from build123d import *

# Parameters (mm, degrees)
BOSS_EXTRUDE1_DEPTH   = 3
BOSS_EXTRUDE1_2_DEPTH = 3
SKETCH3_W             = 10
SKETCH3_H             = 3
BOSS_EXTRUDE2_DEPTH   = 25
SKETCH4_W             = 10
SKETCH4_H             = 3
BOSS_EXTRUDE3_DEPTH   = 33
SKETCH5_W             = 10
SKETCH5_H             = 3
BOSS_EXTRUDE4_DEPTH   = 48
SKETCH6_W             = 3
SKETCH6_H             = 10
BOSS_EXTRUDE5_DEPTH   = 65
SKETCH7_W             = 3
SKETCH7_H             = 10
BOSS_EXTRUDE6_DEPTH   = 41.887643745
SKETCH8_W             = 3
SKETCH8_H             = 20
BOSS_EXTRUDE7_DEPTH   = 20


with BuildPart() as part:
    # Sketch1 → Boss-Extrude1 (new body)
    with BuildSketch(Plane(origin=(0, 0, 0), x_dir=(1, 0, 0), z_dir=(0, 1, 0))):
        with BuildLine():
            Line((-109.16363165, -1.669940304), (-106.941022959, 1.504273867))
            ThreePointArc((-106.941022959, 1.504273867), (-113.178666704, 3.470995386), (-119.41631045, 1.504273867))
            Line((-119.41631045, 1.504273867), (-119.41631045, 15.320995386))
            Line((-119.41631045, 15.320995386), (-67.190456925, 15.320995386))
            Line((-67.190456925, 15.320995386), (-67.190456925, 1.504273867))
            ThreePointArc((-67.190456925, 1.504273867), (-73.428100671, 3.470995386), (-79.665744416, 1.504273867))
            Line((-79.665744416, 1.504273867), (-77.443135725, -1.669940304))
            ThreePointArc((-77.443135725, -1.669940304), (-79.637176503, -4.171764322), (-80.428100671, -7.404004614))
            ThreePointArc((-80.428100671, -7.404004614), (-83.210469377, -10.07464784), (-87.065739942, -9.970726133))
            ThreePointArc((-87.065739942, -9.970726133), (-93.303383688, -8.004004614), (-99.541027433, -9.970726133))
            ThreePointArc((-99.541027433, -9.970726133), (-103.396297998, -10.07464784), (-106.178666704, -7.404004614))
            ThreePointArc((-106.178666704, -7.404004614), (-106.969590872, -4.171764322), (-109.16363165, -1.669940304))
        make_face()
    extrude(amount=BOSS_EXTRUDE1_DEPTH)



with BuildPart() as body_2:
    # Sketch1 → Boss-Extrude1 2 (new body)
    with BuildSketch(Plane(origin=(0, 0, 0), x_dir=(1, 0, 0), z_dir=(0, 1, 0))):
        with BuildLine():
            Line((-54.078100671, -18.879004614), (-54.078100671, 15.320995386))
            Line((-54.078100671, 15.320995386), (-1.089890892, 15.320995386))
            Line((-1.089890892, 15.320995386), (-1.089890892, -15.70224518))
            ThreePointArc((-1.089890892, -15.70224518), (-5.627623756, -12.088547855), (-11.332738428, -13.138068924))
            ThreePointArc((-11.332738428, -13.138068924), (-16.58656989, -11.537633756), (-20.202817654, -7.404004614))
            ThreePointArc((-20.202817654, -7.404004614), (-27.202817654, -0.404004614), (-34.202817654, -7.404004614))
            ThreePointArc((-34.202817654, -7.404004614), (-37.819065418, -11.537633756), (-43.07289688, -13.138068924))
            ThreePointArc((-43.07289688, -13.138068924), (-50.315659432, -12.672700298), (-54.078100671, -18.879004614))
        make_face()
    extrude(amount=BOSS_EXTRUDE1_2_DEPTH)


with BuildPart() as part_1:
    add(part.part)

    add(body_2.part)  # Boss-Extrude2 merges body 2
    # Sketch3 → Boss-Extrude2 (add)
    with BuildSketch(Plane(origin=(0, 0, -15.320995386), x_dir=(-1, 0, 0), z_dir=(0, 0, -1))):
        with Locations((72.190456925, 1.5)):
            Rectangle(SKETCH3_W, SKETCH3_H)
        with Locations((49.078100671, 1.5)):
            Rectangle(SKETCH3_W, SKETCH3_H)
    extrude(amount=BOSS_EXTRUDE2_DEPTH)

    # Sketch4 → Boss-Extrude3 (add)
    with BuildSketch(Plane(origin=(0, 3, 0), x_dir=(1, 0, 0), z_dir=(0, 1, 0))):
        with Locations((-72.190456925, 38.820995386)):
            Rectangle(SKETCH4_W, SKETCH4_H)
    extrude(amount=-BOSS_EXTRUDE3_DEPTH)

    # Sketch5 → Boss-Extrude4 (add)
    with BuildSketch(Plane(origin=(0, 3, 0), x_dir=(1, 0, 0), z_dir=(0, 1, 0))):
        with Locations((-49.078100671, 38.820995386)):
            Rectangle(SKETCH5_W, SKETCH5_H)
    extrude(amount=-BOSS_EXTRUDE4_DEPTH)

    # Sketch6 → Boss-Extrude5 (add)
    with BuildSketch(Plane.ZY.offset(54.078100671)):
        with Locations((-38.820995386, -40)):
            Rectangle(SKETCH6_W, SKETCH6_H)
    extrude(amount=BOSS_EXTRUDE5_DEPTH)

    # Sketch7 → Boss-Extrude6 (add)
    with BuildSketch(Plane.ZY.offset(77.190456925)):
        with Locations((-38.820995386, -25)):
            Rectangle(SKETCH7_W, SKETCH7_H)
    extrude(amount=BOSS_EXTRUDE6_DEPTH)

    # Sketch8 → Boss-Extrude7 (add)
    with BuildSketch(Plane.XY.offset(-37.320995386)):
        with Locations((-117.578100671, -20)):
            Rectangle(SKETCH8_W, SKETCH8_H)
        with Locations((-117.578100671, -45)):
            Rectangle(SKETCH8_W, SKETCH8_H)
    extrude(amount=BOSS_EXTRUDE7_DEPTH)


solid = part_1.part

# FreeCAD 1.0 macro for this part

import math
import FreeCAD as App
import Part
import Sketcher

V = App.Vector
Q = App.Units.Quantity


def add_polygon(sketch, points):
    """Adds a closed chain of lines whose ends are joined by coincident constraints."""
    first, n = sketch.GeometryCount, len(points)
    for a, b in zip(points, points[1:] + points[:1]):
        sketch.addGeometry(Part.LineSegment(App.Vector(*a, 0), App.Vector(*b, 0)), False)
    for i in range(n):
        sketch.addConstraint(Sketcher.Constraint("Coincident", first + i, 2, first + (i + 1) % n, 1))

doc = App.newDocument("Part")
body = doc.addObject("PartDesign::Body", "Body")

# Sketch on XZ plane
sketch1 = body.newObject("Sketcher::SketchObject", "Sketch")
sketch1.AttachmentSupport = (doc.getObject("XZ_Plane"), [""])
sketch1.MapMode = "FlatFace"
sketch1.addGeometry(Part.LineSegment(V(-106.9, -1.5, 0), V(-109.2, 1.7, 0)), False)
sketch1.addGeometry(Part.ArcOfCircle(Part.Circle(V(-113.2, 7.4, 0), V(0, 0, 1), 7), math.radians(-55), math.radians(0)), False)
sketch1.addGeometry(Part.ArcOfCircle(Part.Circle(V(-101.6, 5.4, 0), V(0, 0, 1), 5), math.radians(66), math.radians(157)), False)
sketch1.addGeometry(Part.ArcOfCircle(Part.Circle(V(-93.3, 18.9, 0), V(0, 0, 1), 10.9), math.radians(-125), math.radians(-55)), False)
sketch1.addGeometry(Part.ArcOfCircle(Part.Circle(V(-85, 5.4, 0), V(0, 0, 1), 5), math.radians(23), math.radians(114)), False)
sketch1.addGeometry(Part.ArcOfCircle(Part.Circle(V(-73.4, 7.4, 0), V(0, 0, 1), 7), math.radians(-180), math.radians(-125)), False)
sketch1.addGeometry(Part.LineSegment(V(-77.4, 1.7, 0), V(-79.7, -1.5, 0)), False)
sketch1.addGeometry(Part.ArcOfCircle(Part.Circle(V(-73.4, 7.4, 0), V(0, 0, 1), 10.9), math.radians(-125), math.radians(-55)), False)
sketch1.addGeometry(Part.LineSegment(V(-67.2, -1.5, 0), V(-67.2, -15.3, 0)), False)
sketch1.addGeometry(Part.LineSegment(V(-67.2, -15.3, 0), V(-119.4, -15.3, 0)), False)
sketch1.addGeometry(Part.LineSegment(V(-119.4, -15.3, 0), V(-119.4, -1.5, 0)), False)
sketch1.addGeometry(Part.ArcOfCircle(Part.Circle(V(-113.2, 7.4, 0), V(0, 0, 1), 10.9), math.radians(-125), math.radians(-55)), False)
sketch1.addConstraint(Sketcher.Constraint("Coincident", 0, 2, 1, 1))
sketch1.addConstraint(Sketcher.Constraint("Coincident", 1, 2, 2, 2))
sketch1.addConstraint(Sketcher.Constraint("Coincident", 2, 1, 3, 1))
sketch1.addConstraint(Sketcher.Constraint("Coincident", 3, 2, 4, 2))
sketch1.addConstraint(Sketcher.Constraint("Coincident", 4, 1, 5, 1))
sketch1.addConstraint(Sketcher.Constraint("Coincident", 5, 2, 6, 1))
sketch1.addConstraint(Sketcher.Constraint("Coincident", 6, 2, 7, 1))
sketch1.addConstraint(Sketcher.Constraint("Coincident", 7, 2, 8, 1))
sketch1.addConstraint(Sketcher.Constraint("Coincident", 8, 2, 9, 1))
sketch1.addConstraint(Sketcher.Constraint("Coincident", 9, 2, 10, 1))
sketch1.addConstraint(Sketcher.Constraint("Coincident", 10, 2, 11, 1))
sketch1.addConstraint(Sketcher.Constraint("Coincident", 11, 2, 0, 1))
sketch1.addConstraint(Sketcher.Constraint("Vertical", 8))
sketch1.addConstraint(Sketcher.Constraint("Horizontal", 9))
sketch1.addConstraint(Sketcher.Constraint("Vertical", 10))
sketch1.addConstraint(Sketcher.Constraint("Coincident", 7, 3, 5, 3))
sketch1.addConstraint(Sketcher.Constraint("Coincident", 11, 3, 1, 3))
sketch1.addConstraint(Sketcher.Constraint("Equal", 2, 4))
sketch1.addConstraint(Sketcher.Constraint("Equal", 1, 5))
sketch1.addConstraint(Sketcher.Constraint("Equal", 3, 7))
sketch1.addConstraint(Sketcher.Constraint("Equal", 7, 11))
sketch1.addConstraint(Sketcher.Constraint("Horizontal", 2, 3, 4, 3))
sketch1.addConstraint(Sketcher.Constraint("Horizontal", 1, 3, 5, 3))
sketch1.addConstraint(Sketcher.Constraint("Horizontal", 11, 3, 1, 2))
sketch1.addConstraint(Sketcher.Constraint("Horizontal", 2, 1, 3, 2))
sketch1.addConstraint(Sketcher.Constraint("Horizontal", 1, 2, 4, 1))
sketch1.addConstraint(Sketcher.Constraint("Horizontal", 0, 2, 5, 2))
sketch1.addConstraint(Sketcher.Constraint("Horizontal", 6, 2, 7, 2))
sketch1.addConstraint(Sketcher.Constraint("Horizontal", 7, 2, 10, 2))
sketch1.addConstraint(Sketcher.Constraint("Horizontal", 10, 2, 11, 2))
sketch1.addConstraint(Sketcher.Constraint("Radius", 1, Q("7 mm")))
sketch1.addConstraint(Sketcher.Constraint("Radius", 2, Q("5 mm")))
sketch1.addConstraint(Sketcher.Constraint("Angle", 0, Q("125 deg")))
sketch1.addConstraint(Sketcher.Constraint("Radius", 3, Q("10.875 mm")))
sketch1.addConstraint(Sketcher.Constraint("DistanceY", 1, 3, 3, 3, Q("11.475 mm")))
sketch1.addConstraint(Sketcher.Constraint("DistanceY", 8, 2, 7, 3, Q("22.725 mm")))
sketch1.addConstraint(Sketcher.Constraint("DistanceY", 8, 2, 8, 1, Q("13.816722 mm")))
sketch1.addConstraint(Sketcher.Constraint("DistanceX", 5, 3, -1, 1, Q("73.428101 mm")))
sketch1.addConstraint(Sketcher.Constraint("DistanceX", 9, 2, 9, 1, Q("52.225854 mm")))
sketch1.addConstraint(Sketcher.Constraint("DistanceX", 2, 3, -1, 1, Q("101.59297 mm")))
sketch1.addConstraint(Sketcher.Constraint("DistanceY", -1, 1, 0, 2, Q("1.66994 mm")))
pad1 = body.newObject("PartDesign::Pad", "Pad")
pad1.Profile = sketch1
pad1.Length = 3
pad1.Reversed = True
body2 = doc.addObject("PartDesign::Body", "Body001")

# Sketch on XZ plane
sketch2 = body2.newObject("Sketcher::SketchObject", "Sketch001")
sketch2.AttachmentSupport = (doc.getObject("XZ_Plane001"), [""])
sketch2.MapMode = "FlatFace"
sketch2.addGeometry(Part.LineSegment(V(-54.078101, -15.320995, 0), V(-54.078101, 18.879005, 0)), False)
sketch2.addGeometry(Part.ArcOfCircle(Part.Circle(V(-47.078101, 18.879005, 0), V(0, 0, 1), 7), math.radians(-180), math.radians(-55.098177)), False)
sketch2.addGeometry(Part.ArcOfCircle(Part.Circle(V(-43.247975, 3.139602, 0), V(0, 0, 1), 10), math.radians(25.241864), math.radians(88.996826)), False)
sketch2.addGeometry(Part.ArcOfCircle(Part.Circle(V(-27.202818, 7.404005, 0), V(0, 0, 1), 7), math.radians(180), math.radians(360)), False)
sketch2.addGeometry(Part.ArcOfCircle(Part.Circle(V(-11.157661, 3.139602, 0), V(0, 0, 1), 10), math.radians(91.003174), math.radians(154.758136)), False)
sketch2.addGeometry(Part.ArcOfCircle(Part.Circle(V(-7.327535, 18.879005, 0), V(0, 0, 1), 7), math.radians(-124.901823), math.radians(-26.989215)), False)
sketch2.addGeometry(Part.LineSegment(V(-1.089891, 15.702245, 0), V(-1.089891, -15.320995, 0)), False)
sketch2.addGeometry(Part.LineSegment(V(-1.089891, -15.320995, 0), V(-54.078101, -15.320995, 0)), False)
sketch2.addConstraint(Sketcher.Constraint("Tangent", 0, 2, 1, 1))
sketch2.addConstraint(Sketcher.Constraint("Coincident", 1, 2, 2, 2))
sketch2.addConstraint(Sketcher.Constraint("Coincident", 2, 1, 3, 1))
sketch2.addConstraint(Sketcher.Constraint("Coincident", 3, 2, 4, 2))
sketch2.addConstraint(Sketcher.Constraint("Coincident", 4, 1, 5, 1))
sketch2.addConstraint(Sketcher.Constraint("Coincident", 5, 2, 6, 1))
sketch2.addConstraint(Sketcher.Constraint("Coincident", 6, 2, 7, 1))
sketch2.addConstraint(Sketcher.Constraint("Coincident", 7, 2, 0, 1))
sketch2.addConstraint(Sketcher.Constraint("Vertical", 0))
sketch2.addConstraint(Sketcher.Constraint("Vertical", 6))
sketch2.addConstraint(Sketcher.Constraint("Horizontal", 7))
sketch2.addConstraint(Sketcher.Constraint("Equal", 1, 3))
sketch2.addConstraint(Sketcher.Constraint("Equal", 2, 4))
sketch2.addConstraint(Sketcher.Constraint("Equal", 3, 5))
sketch2.addConstraint(Sketcher.Constraint("Horizontal", 2, 3, 4, 3))
sketch2.addConstraint(Sketcher.Constraint("Horizontal", 1, 3, 5, 3))
sketch2.addConstraint(Sketcher.Constraint("Horizontal", 3, 3, 2, 1))
sketch2.addConstraint(Sketcher.Constraint("Horizontal", 2, 1, 3, 2))
sketch2.addConstraint(Sketcher.Constraint("Horizontal", 1, 2, 4, 1))
sketch2.addConstraint(Sketcher.Constraint("Radius", 1, Q("7 mm")))
sketch2.addConstraint(Sketcher.Constraint("Radius", 2, Q("10 mm")))
sketch2.addConstraint(Sketcher.Constraint("DistanceY", 0, 1, 0, 2, Q("34.2 mm")))
sketch2.addConstraint(Sketcher.Constraint("DistanceY", 3, 3, 1, 3, Q("11.475 mm")))
sketch2.addConstraint(Sketcher.Constraint("DistanceX", 7, 2, 7, 1, Q("52.98821 mm")))
sketch2.addConstraint(Sketcher.Constraint("DistanceY", 6, 2, 6, 1, Q("31.023241 mm")))
sketch2.addConstraint(Sketcher.Constraint("DistanceX", 1, 3, -1, 1, Q("47.078101 mm")))
sketch2.addConstraint(Sketcher.Constraint("DistanceY", -1, 1, 2, 3, Q("3.139602 mm")))
sketch2.addConstraint(Sketcher.Constraint("DistanceX", 4, 3, -1, 1, Q("11.157661 mm")))
pad2 = body2.newObject("PartDesign::Pad", "Pad001")
pad2.Profile = sketch2
pad2.Length = 3
pad2.Reversed = True
body.AllowCompound = True
doc.recompute()

boolean = body.newObject("PartDesign::Boolean", "Boolean")
boolean.Type = "Fuse"
boolean.addObjects([body2])

# Sketch on XY plane
sketch3 = body.newObject("Sketcher::SketchObject", "Sketch002")
sketch3.AttachmentSupport = (doc.getObject("XY_Plane"), [""])
sketch3.MapMode = "FlatFace"
sketch3.AttachmentOffset = App.Placement(V(0, 0, -15.320995), App.Rotation())
add_polygon(sketch3, [(-67.2, 3), (-67.2, 0), (-77.2, 0), (-77.2, 3)])  # lines 0-3
add_polygon(sketch3, [(-44.1, 3), (-44.1, 0), (-54.1, 0), (-54.1, 3)])  # lines 4-7
sketch3.addConstraint(Sketcher.Constraint("Vertical", 0))
sketch3.addConstraint(Sketcher.Constraint("Horizontal", 1))
sketch3.addConstraint(Sketcher.Constraint("Vertical", 2))
sketch3.addConstraint(Sketcher.Constraint("Horizontal", 3))
sketch3.addConstraint(Sketcher.Constraint("Vertical", 4))
sketch3.addConstraint(Sketcher.Constraint("Horizontal", 5))
sketch3.addConstraint(Sketcher.Constraint("Vertical", 6))
sketch3.addConstraint(Sketcher.Constraint("Horizontal", 7))
sketch3.addConstraint(Sketcher.Constraint("PointOnObject", 0, 2, -1))
sketch3.addConstraint(Sketcher.Constraint("PointOnObject", 4, 2, -1))
sketch3.addConstraint(Sketcher.Constraint("Horizontal", 3, 2, 6, 2))
sketch3.addConstraint(Sketcher.Constraint("Equal", 3, 5))
sketch3.addConstraint(Sketcher.Constraint("DistanceX", 1, 2, 1, 1, Q("10 mm")))
sketch3.addConstraint(Sketcher.Constraint("DistanceY", 0, 2, 0, 1, Q("3 mm")))
sketch3.addConstraint(Sketcher.Constraint("DistanceX", 4, 2, -1, 1, Q("44.078101 mm")))
sketch3.addConstraint(Sketcher.Constraint("DistanceX", 0, 2, -1, 1, Q("67.190457 mm")))
pad3 = body.newObject("PartDesign::Pad", "Pad002")
pad3.Profile = sketch3
pad3.Length = 25
pad3.Reversed = True

# Sketch on XZ plane
sketch4 = body.newObject("Sketcher::SketchObject", "Sketch003")
sketch4.AttachmentSupport = (doc.getObject("XZ_Plane"), [""])
sketch4.MapMode = "FlatFace"
sketch4.AttachmentOffset = App.Placement(V(0, 0, -3), App.Rotation())
add_polygon(sketch4, [(-77.2, -40.3), (-77.2, -37.3), (-67.2, -37.3), (-67.2, -40.3)])  # lines 0-3
sketch4.addConstraint(Sketcher.Constraint("Vertical", 0))
sketch4.addConstraint(Sketcher.Constraint("Horizontal", 1))
sketch4.addConstraint(Sketcher.Constraint("Vertical", 2))
sketch4.addConstraint(Sketcher.Constraint("Horizontal", 3))
sketch4.addConstraint(Sketcher.Constraint("DistanceX", 1, 1, 1, 2, Q("10 mm")))
sketch4.addConstraint(Sketcher.Constraint("DistanceY", 0, 1, 0, 2, Q("3 mm")))
sketch4.addConstraint(Sketcher.Constraint("DistanceX", 0, 2, -1, 1, Q("77.190457 mm")))
sketch4.addConstraint(Sketcher.Constraint("DistanceY", 0, 2, -1, 1, Q("37.320995 mm")))
pad4 = body.newObject("PartDesign::Pad", "Pad003")
pad4.Profile = sketch4
pad4.Length = 33

# Sketch on XZ plane
sketch5 = body.newObject("Sketcher::SketchObject", "Sketch004")
sketch5.AttachmentSupport = (doc.getObject("XZ_Plane"), [""])
sketch5.MapMode = "FlatFace"
sketch5.AttachmentOffset = App.Placement(V(0, 0, -3), App.Rotation())
add_polygon(sketch5, [(-54.1, -40.3), (-54.1, -37.3), (-44.1, -37.3), (-44.1, -40.3)])  # lines 0-3
sketch5.addConstraint(Sketcher.Constraint("Vertical", 0))
sketch5.addConstraint(Sketcher.Constraint("Horizontal", 1))
sketch5.addConstraint(Sketcher.Constraint("Vertical", 2))
sketch5.addConstraint(Sketcher.Constraint("Horizontal", 3))
sketch5.addConstraint(Sketcher.Constraint("DistanceX", 1, 1, 1, 2, Q("10 mm")))
sketch5.addConstraint(Sketcher.Constraint("DistanceY", 0, 1, 0, 2, Q("3 mm")))
sketch5.addConstraint(Sketcher.Constraint("DistanceX", 0, 2, -1, 1, Q("54.078101 mm")))
sketch5.addConstraint(Sketcher.Constraint("DistanceY", 0, 2, -1, 1, Q("37.320995 mm")))
pad5 = body.newObject("PartDesign::Pad", "Pad004")
pad5.Profile = sketch5
pad5.Length = 48

# Sketch on YZ plane
sketch6 = body.newObject("Sketcher::SketchObject", "Sketch005")
sketch6.AttachmentSupport = (doc.getObject("YZ_Plane"), [""])
sketch6.MapMode = "FlatFace"
sketch6.AttachmentOffset = App.Placement(V(0, 0, -54.078101), App.Rotation())
add_polygon(sketch6, [(-35, -40.3), (-45, -40.3), (-45, -37.3), (-35, -37.3)])  # lines 0-3
sketch6.addConstraint(Sketcher.Constraint("Horizontal", 0))
sketch6.addConstraint(Sketcher.Constraint("Vertical", 1))
sketch6.addConstraint(Sketcher.Constraint("Horizontal", 2))
sketch6.addConstraint(Sketcher.Constraint("Vertical", 3))
sketch6.addConstraint(Sketcher.Constraint("DistanceX", 0, 2, 0, 1, Q("10 mm")))
sketch6.addConstraint(Sketcher.Constraint("DistanceY", 1, 1, 1, 2, Q("3 mm")))
sketch6.addConstraint(Sketcher.Constraint("DistanceX", 0, 2, -1, 1, Q("45 mm")))
sketch6.addConstraint(Sketcher.Constraint("DistanceY", 0, 2, -1, 1, Q("40.320995 mm")))
pad6 = body.newObject("PartDesign::Pad", "Pad005")
pad6.Profile = sketch6
pad6.Length = 65
pad6.Reversed = True

# Sketch on YZ plane
sketch7 = body.newObject("Sketcher::SketchObject", "Sketch006")
sketch7.AttachmentSupport = (doc.getObject("YZ_Plane"), [""])
sketch7.MapMode = "FlatFace"
sketch7.AttachmentOffset = App.Placement(V(0, 0, -77.190457), App.Rotation())
add_polygon(sketch7, [(-20, -40.3), (-30, -40.3), (-30, -37.3), (-20, -37.3)])  # lines 0-3
sketch7.addConstraint(Sketcher.Constraint("Horizontal", 0))
sketch7.addConstraint(Sketcher.Constraint("Vertical", 1))
sketch7.addConstraint(Sketcher.Constraint("Horizontal", 2))
sketch7.addConstraint(Sketcher.Constraint("Vertical", 3))
sketch7.addConstraint(Sketcher.Constraint("DistanceX", 0, 2, 0, 1, Q("10 mm")))
sketch7.addConstraint(Sketcher.Constraint("DistanceY", 1, 1, 1, 2, Q("3 mm")))
sketch7.addConstraint(Sketcher.Constraint("DistanceX", 0, 2, -1, 1, Q("30 mm")))
sketch7.addConstraint(Sketcher.Constraint("DistanceY", 0, 2, -1, 1, Q("40.320995 mm")))
pad7 = body.newObject("PartDesign::Pad", "Pad006")
pad7.Profile = sketch7
pad7.Length = 41.887644
pad7.Reversed = True

# Sketch on XY plane
sketch8 = body.newObject("Sketcher::SketchObject", "Sketch007")
sketch8.AttachmentSupport = (doc.getObject("XY_Plane"), [""])
sketch8.MapMode = "FlatFace"
sketch8.AttachmentOffset = App.Placement(V(0, 0, -37.320995), App.Rotation())
add_polygon(sketch8, [(-119.1, -10), (-119.1, -30), (-116.1, -30), (-116.1, -10)])  # lines 0-3
add_polygon(sketch8, [(-119.1, -35), (-119.1, -55), (-116.1, -55), (-116.1, -35)])  # lines 4-7
sketch8.addConstraint(Sketcher.Constraint("Vertical", 0))
sketch8.addConstraint(Sketcher.Constraint("Horizontal", 1))
sketch8.addConstraint(Sketcher.Constraint("Vertical", 2))
sketch8.addConstraint(Sketcher.Constraint("Horizontal", 3))
sketch8.addConstraint(Sketcher.Constraint("Vertical", 4))
sketch8.addConstraint(Sketcher.Constraint("Horizontal", 5))
sketch8.addConstraint(Sketcher.Constraint("Vertical", 6))
sketch8.addConstraint(Sketcher.Constraint("Horizontal", 7))
sketch8.addConstraint(Sketcher.Constraint("Vertical", 3, 2, 4, 2))
sketch8.addConstraint(Sketcher.Constraint("Vertical", 2, 2, 5, 2))
sketch8.addConstraint(Sketcher.Constraint("Equal", 2, 4))
sketch8.addConstraint(Sketcher.Constraint("DistanceX", 1, 1, 1, 2, Q("3 mm")))
sketch8.addConstraint(Sketcher.Constraint("DistanceY", 0, 2, 0, 1, Q("20 mm")))
sketch8.addConstraint(Sketcher.Constraint("DistanceY", 0, 2, -1, 1, Q("30 mm")))
sketch8.addConstraint(Sketcher.Constraint("DistanceY", 4, 2, -1, 1, Q("55 mm")))
sketch8.addConstraint(Sketcher.Constraint("DistanceX", 0, 2, -1, 1, Q("119.078101 mm")))
pad8 = body.newObject("PartDesign::Pad", "Pad007")
pad8.Profile = sketch8
pad8.Length = 20

doc.recompute()
